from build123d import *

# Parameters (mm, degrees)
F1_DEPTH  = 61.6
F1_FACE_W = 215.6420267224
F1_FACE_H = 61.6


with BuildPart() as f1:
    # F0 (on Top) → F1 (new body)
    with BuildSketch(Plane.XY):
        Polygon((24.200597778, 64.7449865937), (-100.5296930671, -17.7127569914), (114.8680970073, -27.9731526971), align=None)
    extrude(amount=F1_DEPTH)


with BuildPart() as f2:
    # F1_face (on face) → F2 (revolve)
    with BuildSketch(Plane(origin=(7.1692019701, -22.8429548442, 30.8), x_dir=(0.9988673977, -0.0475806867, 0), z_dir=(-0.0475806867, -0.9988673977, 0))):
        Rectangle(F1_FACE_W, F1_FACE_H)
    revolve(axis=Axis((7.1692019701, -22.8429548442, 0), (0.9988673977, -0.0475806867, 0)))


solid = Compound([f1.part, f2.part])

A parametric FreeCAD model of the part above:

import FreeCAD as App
import Part
import Sketcher

V = App.Vector
Q = App.Units.Quantity

doc = App.newDocument("Part")
body = doc.addObject("PartDesign::Body", "Body")

# Sketch on XY plane
sketch1 = doc.addObject("Sketcher::SketchObject", "Sketch")
body.addObject(sketch1)
sketch1.AttachmentSupport = (doc.XY_Plane, [""])
sketch1.MapMode = "FlatFace"
sketch1.addGeometry(Part.LineSegment(V(24.200598, 64.744987, 0), V(-100.529693, -17.712757, 0)), False)
sketch1.addGeometry(Part.LineSegment(V(-100.529693, -17.712757, 0), V(114.868097, -27.973153, 0)), False)
sketch1.addGeometry(Part.LineSegment(V(114.868097, -27.973153, 0), V(24.200598, 64.744987, 0)), False)
sketch1.addConstraint(Sketcher.Constraint("Coincident", 0, 2, 1, 1))
sketch1.addConstraint(Sketcher.Constraint("Coincident", 1, 2, 2, 1))
sketch1.addConstraint(Sketcher.Constraint("Coincident", 2, 2, 0, 1))
sketch1.addConstraint(Sketcher.Constraint("DistanceX", 2, 2, 1, 2, Q("90.667499 mm")))
sketch1.addConstraint(Sketcher.Constraint("DistanceX", 0, 2, 1, 2, Q("215.39779 mm")))
sketch1.addConstraint(Sketcher.Constraint("DistanceY", 1, 2, 2, 2, Q("92.718139 mm")))
sketch1.addConstraint(Sketcher.Constraint("Distance", 0, Q("149.522323 mm")))
sketch1.addConstraint(Sketcher.Constraint("DistanceX", 0, 2, -1, 1, Q("100.529693 mm")))
sketch1.addConstraint(Sketcher.Constraint("DistanceY", 0, 2, -1, 1, Q("17.712757 mm")))
pad1 = doc.addObject("PartDesign::Pad", "Pad")
body.addObject(pad1)
pad1.Profile = sketch1
pad1.Length = 61.6
body2 = doc.addObject("PartDesign::Body", "Body001")

# Sketch on an angled plane
sketch2 = doc.addObject("Sketcher::SketchObject", "Sketch001")
body2.addObject(sketch2)
sketch2.Placement = App.Placement(V(7.169202, -22.842955, 30.8), App.Rotation(V(0.998867398, -0.047580687, 0), V(0, 0, 1.000000001), V(-0.047580687, -0.998867398, 0), "ZXY"))
sketch2.addGeometry(Part.LineSegment(V(-107.821013, 30.8, 0), V(-107.821013, -30.8, 0)), False)
sketch2.addGeometry(Part.LineSegment(V(-107.821013, -30.8, 0), V(107.821013, -30.8, 0)), False)
sketch2.addGeometry(Part.LineSegment(V(107.821013, -30.8, 0), V(107.821013, 30.8, 0)), False)
sketch2.addGeometry(Part.LineSegment(V(107.821013, 30.8, 0), V(-107.821013, 30.8, 0)), False)
sketch2.addGeometry(Part.LineSegment(V(-107.821014, -30.8, 0), V(107.821014, -30.8, 0)), True)  # axis
sketch2.addConstraint(Sketcher.Constraint("Coincident", 0, 2, 1, 1))
sketch2.addConstraint(Sketcher.Constraint("Coincident", 1, 2, 2, 1))
sketch2.addConstraint(Sketcher.Constraint("Coincident", 2, 2, 3, 1))
sketch2.addConstraint(Sketcher.Constraint("Coincident", 3, 2, 0, 1))
sketch2.addConstraint(Sketcher.Constraint("Vertical", 0))
sketch2.addConstraint(Sketcher.Constraint("Horizontal", 1))
sketch2.addConstraint(Sketcher.Constraint("Vertical", 2))
sketch2.addConstraint(Sketcher.Constraint("Horizontal", 3))
sketch2.addConstraint(Sketcher.Constraint("Horizontal", 4))
sketch2.addConstraint(Sketcher.Constraint("Coincident", 4, 1, 0, 2))
sketch2.addConstraint(Sketcher.Constraint("Symmetric", 0, 2, 2, 2, -1, 1))
sketch2.addConstraint(Sketcher.Constraint("Vertical", 2, 2, 4, 2))
sketch2.addConstraint(Sketcher.Constraint("DistanceY", 0, 2, 0, 1, Q("61.6 mm")))
sketch2.addConstraint(Sketcher.Constraint("DistanceX", 1, 1, 1, 2, Q("215.642027 mm")))
revolution = doc.addObject("PartDesign::Revolution", "Revolution")
body2.addObject(revolution)
revolution.Profile = sketch2
revolution.ReferenceAxis = (sketch2, ["Axis0"])
revolution.Angle = 360

doc.recompute()
